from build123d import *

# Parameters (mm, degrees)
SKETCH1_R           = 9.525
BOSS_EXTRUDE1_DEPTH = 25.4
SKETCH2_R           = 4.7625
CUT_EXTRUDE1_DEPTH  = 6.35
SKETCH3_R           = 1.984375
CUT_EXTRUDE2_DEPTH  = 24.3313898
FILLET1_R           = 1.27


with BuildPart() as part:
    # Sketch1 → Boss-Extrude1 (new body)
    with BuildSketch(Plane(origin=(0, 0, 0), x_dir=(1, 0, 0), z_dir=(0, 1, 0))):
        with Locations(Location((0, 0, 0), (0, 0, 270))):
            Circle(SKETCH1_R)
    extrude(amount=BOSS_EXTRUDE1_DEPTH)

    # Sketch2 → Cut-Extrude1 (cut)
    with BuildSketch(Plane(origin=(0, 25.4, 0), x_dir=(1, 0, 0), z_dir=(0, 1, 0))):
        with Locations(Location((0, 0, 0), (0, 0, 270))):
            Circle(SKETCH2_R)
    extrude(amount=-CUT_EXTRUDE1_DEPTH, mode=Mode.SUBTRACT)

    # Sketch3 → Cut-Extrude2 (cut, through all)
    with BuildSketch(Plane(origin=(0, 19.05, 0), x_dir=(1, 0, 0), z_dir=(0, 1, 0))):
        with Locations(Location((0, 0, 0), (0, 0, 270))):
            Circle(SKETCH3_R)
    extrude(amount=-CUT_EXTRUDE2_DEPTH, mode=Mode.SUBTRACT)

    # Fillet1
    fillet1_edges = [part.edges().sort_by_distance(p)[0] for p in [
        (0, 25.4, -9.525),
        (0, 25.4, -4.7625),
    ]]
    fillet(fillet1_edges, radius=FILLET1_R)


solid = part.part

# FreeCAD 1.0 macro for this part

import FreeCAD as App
import Part
import Sketcher
from FreeCAD import Vector
Q = App.Units.Quantity


def edges_at(feature, points):
    """Names of the edges that pass closest to the given points."""
    edges = feature.Shape.Edges
    near = lambda p: min(range(len(edges)), key=lambda i: edges[i].distToShape(Part.Vertex(*p))[0])
    return sorted({f"Edge{near(p) + 1}" for p in points})

doc = App.newDocument("Part")
body = doc.addObject("PartDesign::Body", "Body")

# Sketch on XZ plane
sketch1 = body.newObject("Sketcher::SketchObject", "Sketch")
sketch1.AttachmentSupport = (doc.getObject("XZ_Plane"), [""])
sketch1.MapMode = "FlatFace"
sketch1.addGeometry(Part.Circle(Vector(0, 0, 0), Vector(0, 0, 1), 9.525), False)
sketch1.addConstraint([
    Sketcher.Constraint("Coincident", 0, 3, -1, 1),
    Sketcher.Constraint("Diameter", 0, Q("0.75 in")),
])
pad1 = body.newObject("PartDesign::Pad", "Pad")
pad1.Profile = sketch1
pad1.Length = Q("1 in")
pad1.Reversed = True

# Sketch on XZ plane
sketch2 = body.newObject("Sketcher::SketchObject", "Sketch001")
sketch2.AttachmentSupport = (doc.getObject("XZ_Plane"), [""])
sketch2.MapMode = "FlatFace"
sketch2.AttachmentOffset = App.Placement(Vector(0, 0, -1 * 25.4), App.Rotation())
sketch2.addGeometry(Part.Circle(Vector(0, 0, 0), Vector(0, 0, 1), 4.7625), False)
sketch2.addConstraint([
    Sketcher.Constraint("Coincident", 0, 3, -1, 1),
    Sketcher.Constraint("Diameter", 0, Q("0.375 in")),
])
pocket1 = body.newObject("PartDesign::Pocket", "Pocket")
pocket1.Profile = sketch2
pocket1.Length = Q("0.25 in")
pocket1.Reversed = True

# Sketch on XZ plane
sketch3 = body.newObject("Sketcher::SketchObject", "Sketch002")
sketch3.AttachmentSupport = (doc.getObject("XZ_Plane"), [""])
sketch3.MapMode = "FlatFace"
sketch3.AttachmentOffset = App.Placement(Vector(0, 0, -0.75 * 25.4), App.Rotation())
sketch3.addGeometry(Part.Circle(Vector(0, 0, 0), Vector(0, 0, 1), 1.984375), False)
sketch3.addConstraint([
    Sketcher.Constraint("Coincident", 0, 3, -1, 1),
    Sketcher.Constraint("Diameter", 0, Q("0.15625 in")),
])
pocket2 = body.newObject("PartDesign::Pocket", "Pocket001")
pocket2.Profile = sketch3
pocket2.Type = "ThroughAll"
pocket2.Reversed = True
doc.recompute()

fillet = body.newObject("PartDesign::Fillet", "Fillet")
fillet.Base = (pocket2, edges_at(pocket2, [(0, 25.4, -9.525), (0, 25.4, -4.763)]))
fillet.Radius = Q("0.05 in")

doc.recompute()
